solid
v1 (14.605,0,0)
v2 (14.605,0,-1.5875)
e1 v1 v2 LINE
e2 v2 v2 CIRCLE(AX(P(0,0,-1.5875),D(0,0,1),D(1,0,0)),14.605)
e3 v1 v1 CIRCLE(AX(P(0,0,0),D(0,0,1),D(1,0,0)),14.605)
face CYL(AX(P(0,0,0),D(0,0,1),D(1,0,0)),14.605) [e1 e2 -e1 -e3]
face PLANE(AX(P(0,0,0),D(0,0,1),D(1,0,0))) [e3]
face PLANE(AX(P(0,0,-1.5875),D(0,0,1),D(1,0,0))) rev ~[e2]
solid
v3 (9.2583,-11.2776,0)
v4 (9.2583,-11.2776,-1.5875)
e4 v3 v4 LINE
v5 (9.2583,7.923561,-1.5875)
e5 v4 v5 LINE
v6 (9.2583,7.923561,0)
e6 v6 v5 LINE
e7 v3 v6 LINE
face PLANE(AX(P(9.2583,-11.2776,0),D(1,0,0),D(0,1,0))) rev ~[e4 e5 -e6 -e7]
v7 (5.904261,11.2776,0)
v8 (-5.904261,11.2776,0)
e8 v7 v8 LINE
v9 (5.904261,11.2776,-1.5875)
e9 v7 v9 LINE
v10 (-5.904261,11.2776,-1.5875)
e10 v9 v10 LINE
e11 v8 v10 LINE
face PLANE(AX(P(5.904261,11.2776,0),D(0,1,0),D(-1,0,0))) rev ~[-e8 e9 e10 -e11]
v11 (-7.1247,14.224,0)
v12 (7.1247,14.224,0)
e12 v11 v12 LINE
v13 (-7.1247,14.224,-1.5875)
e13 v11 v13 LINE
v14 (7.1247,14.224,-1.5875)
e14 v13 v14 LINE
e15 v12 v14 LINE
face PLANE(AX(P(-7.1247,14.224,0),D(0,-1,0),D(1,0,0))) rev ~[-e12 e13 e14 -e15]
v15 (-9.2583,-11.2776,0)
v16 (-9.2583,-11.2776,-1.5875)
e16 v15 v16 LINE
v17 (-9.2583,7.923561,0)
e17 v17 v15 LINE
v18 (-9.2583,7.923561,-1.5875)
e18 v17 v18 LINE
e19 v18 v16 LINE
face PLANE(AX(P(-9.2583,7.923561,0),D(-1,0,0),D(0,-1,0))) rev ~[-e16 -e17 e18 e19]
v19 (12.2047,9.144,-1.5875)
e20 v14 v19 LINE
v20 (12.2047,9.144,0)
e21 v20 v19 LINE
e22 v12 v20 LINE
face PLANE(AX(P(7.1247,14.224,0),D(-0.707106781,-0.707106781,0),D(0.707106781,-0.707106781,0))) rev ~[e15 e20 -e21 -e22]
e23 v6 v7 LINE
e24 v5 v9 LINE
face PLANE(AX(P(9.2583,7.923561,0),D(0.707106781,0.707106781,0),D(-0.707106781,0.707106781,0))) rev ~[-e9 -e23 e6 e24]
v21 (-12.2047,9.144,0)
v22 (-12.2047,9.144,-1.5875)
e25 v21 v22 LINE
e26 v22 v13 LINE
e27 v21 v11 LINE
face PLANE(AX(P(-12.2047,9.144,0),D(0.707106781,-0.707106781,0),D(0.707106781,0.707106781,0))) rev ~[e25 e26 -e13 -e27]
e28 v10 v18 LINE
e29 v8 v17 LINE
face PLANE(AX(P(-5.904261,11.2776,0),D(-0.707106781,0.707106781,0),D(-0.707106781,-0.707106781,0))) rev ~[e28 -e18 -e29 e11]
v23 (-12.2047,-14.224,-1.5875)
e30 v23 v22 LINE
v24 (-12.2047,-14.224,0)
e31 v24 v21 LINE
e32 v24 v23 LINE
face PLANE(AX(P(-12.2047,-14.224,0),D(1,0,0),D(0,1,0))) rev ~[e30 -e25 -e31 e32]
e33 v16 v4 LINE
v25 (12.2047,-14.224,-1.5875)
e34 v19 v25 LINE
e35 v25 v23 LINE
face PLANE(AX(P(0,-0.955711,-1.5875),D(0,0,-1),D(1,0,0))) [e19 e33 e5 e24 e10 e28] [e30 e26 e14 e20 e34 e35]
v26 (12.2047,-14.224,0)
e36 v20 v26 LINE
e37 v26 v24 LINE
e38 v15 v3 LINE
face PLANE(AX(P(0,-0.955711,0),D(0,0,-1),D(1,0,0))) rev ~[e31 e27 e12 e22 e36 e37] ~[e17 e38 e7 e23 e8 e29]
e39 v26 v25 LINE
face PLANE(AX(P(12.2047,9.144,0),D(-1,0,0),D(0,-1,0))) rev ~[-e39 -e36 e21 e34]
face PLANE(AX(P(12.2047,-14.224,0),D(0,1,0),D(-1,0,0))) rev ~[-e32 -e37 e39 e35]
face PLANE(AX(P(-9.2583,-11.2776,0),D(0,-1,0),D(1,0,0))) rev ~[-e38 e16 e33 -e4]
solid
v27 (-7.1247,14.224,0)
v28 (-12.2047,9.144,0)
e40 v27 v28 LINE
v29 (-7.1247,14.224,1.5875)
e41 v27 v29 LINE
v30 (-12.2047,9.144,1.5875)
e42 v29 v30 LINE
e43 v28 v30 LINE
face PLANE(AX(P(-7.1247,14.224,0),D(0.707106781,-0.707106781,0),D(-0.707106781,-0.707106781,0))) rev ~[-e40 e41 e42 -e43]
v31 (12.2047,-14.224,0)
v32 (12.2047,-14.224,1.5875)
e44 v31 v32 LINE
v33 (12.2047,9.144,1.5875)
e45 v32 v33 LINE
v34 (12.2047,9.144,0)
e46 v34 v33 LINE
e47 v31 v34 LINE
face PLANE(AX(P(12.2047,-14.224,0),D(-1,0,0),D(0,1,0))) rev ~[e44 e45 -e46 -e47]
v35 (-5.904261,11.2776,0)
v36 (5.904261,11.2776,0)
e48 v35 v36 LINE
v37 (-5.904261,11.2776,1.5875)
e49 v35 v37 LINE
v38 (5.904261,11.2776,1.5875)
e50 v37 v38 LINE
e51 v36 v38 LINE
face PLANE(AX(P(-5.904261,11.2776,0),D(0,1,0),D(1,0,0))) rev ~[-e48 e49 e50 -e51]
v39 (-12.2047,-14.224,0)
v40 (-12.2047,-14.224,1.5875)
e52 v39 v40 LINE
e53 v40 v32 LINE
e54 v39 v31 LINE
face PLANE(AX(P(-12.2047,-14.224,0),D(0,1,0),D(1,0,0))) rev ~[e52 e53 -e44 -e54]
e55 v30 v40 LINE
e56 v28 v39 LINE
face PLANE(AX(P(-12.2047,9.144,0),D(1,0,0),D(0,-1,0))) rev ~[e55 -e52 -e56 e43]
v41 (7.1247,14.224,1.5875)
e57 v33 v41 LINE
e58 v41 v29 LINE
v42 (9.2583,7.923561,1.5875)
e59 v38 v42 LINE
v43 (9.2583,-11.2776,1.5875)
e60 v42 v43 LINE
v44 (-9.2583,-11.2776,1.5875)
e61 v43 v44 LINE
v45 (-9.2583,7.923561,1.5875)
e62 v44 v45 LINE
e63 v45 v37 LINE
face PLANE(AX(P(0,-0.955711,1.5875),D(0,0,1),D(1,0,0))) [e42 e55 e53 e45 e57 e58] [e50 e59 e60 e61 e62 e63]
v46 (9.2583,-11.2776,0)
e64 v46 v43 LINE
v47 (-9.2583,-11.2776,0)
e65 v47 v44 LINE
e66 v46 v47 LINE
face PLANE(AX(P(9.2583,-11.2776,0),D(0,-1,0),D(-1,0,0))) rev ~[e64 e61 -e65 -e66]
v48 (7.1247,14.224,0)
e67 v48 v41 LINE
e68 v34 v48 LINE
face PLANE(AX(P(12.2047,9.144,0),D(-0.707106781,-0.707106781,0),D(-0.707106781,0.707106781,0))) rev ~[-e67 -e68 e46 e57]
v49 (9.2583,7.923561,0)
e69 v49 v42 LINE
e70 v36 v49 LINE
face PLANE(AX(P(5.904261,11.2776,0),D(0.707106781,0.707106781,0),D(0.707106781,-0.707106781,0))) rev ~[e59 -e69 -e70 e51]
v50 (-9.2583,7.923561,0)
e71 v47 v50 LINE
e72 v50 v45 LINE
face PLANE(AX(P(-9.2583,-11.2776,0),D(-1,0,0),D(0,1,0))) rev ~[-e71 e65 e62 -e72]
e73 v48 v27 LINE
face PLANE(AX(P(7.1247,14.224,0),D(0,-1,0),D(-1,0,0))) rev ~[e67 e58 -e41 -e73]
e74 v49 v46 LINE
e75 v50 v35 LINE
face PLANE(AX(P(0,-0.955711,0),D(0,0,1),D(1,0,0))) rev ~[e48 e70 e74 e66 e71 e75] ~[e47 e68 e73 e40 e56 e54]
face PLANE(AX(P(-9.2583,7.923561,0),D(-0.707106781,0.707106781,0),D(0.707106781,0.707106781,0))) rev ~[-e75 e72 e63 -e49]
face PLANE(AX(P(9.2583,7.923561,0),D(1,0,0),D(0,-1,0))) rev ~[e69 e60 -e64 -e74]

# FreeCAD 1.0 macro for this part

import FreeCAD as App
import Part
import Sketcher
Q = App.Units.Quantity

doc = App.newDocument("Part")
body = doc.addObject("PartDesign::Body", "Body")

# Sketch on XY plane
sketch1 = body.newObject("Sketcher::SketchObject", "Sketch")
sketch1.AttachmentSupport = (doc.getObject("XY_Plane"), [""])
sketch1.MapMode = "FlatFace"
sketch1.addGeometry(Part.LineSegment(App.Vector(-12.2, -14.2, 0), App.Vector(12.2, -14.2, 0)), False)
sketch1.addGeometry(Part.LineSegment(App.Vector(12.2, -14.2, 0), App.Vector(12.2, 9.1, 0)), False)
sketch1.addGeometry(Part.LineSegment(App.Vector(12.2, 9.1, 0), App.Vector(7.1, 14.2, 0)), False)
sketch1.addGeometry(Part.LineSegment(App.Vector(7.1, 14.2, 0), App.Vector(-7.1, 14.2, 0)), False)
sketch1.addGeometry(Part.LineSegment(App.Vector(-7.1, 14.2, 0), App.Vector(-12.2, 9.1, 0)), False)
sketch1.addGeometry(Part.LineSegment(App.Vector(-12.2, 9.1, 0), App.Vector(-12.2, -14.2, 0)), False)
sketch1.addGeometry(Part.LineSegment(App.Vector(9.3, 7.9, 0), App.Vector(9.3, -11.3, 0)), False)
sketch1.addGeometry(Part.LineSegment(App.Vector(9.3, -11.3, 0), App.Vector(-9.3, -11.3, 0)), False)
sketch1.addGeometry(Part.LineSegment(App.Vector(-9.3, -11.3, 0), App.Vector(-9.3, 7.9, 0)), False)
sketch1.addGeometry(Part.LineSegment(App.Vector(-9.3, 7.9, 0), App.Vector(-5.9, 11.3, 0)), False)
sketch1.addGeometry(Part.LineSegment(App.Vector(-5.9, 11.3, 0), App.Vector(5.9, 11.3, 0)), False)
sketch1.addGeometry(Part.LineSegment(App.Vector(5.9, 11.3, 0), App.Vector(9.3, 7.9, 0)), False)
sketch1.addConstraint(Sketcher.Constraint("Coincident", 0, 2, 1, 1))
sketch1.addConstraint(Sketcher.Constraint("Coincident", 1, 2, 2, 1))
sketch1.addConstraint(Sketcher.Constraint("Coincident", 2, 2, 3, 1))
sketch1.addConstraint(Sketcher.Constraint("Coincident", 3, 2, 4, 1))
sketch1.addConstraint(Sketcher.Constraint("Coincident", 4, 2, 5, 1))
sketch1.addConstraint(Sketcher.Constraint("Coincident", 5, 2, 0, 1))
sketch1.addConstraint(Sketcher.Constraint("Coincident", 6, 2, 7, 1))
sketch1.addConstraint(Sketcher.Constraint("Coincident", 7, 2, 8, 1))
sketch1.addConstraint(Sketcher.Constraint("Coincident", 8, 2, 9, 1))
sketch1.addConstraint(Sketcher.Constraint("Coincident", 9, 2, 10, 1))
sketch1.addConstraint(Sketcher.Constraint("Coincident", 10, 2, 11, 1))
sketch1.addConstraint(Sketcher.Constraint("Coincident", 11, 2, 6, 1))
sketch1.addConstraint(Sketcher.Constraint("Horizontal", 0))
sketch1.addConstraint(Sketcher.Constraint("Vertical", 1))
sketch1.addConstraint(Sketcher.Constraint("Horizontal", 3))
sketch1.addConstraint(Sketcher.Constraint("Vertical", 5))
sketch1.addConstraint(Sketcher.Constraint("Vertical", 6))
sketch1.addConstraint(Sketcher.Constraint("Horizontal", 7))
sketch1.addConstraint(Sketcher.Constraint("Vertical", 8))
sketch1.addConstraint(Sketcher.Constraint("Horizontal", 10))
sketch1.addConstraint(Sketcher.Constraint("Symmetric", 1, 2, 4, 2, -2))
sketch1.addConstraint(Sketcher.Constraint("Symmetric", 8, 2, 11, 2, -2))
sketch1.addConstraint(Sketcher.Constraint("Perpendicular", 2, 4))
sketch1.addConstraint(Sketcher.Constraint("Parallel", 4, 9))
sketch1.addConstraint(Sketcher.Constraint("Perpendicular", 9, 11))
sketch1.addConstraint(Sketcher.Constraint("Equal", 2, 4))
sketch1.addConstraint(Sketcher.Constraint("DistanceY", 1, 1, 1, 2, Q("0.92 in")))
sketch1.addConstraint(Sketcher.Constraint("DistanceX", 2, 2, 1, 2, Q("0.2 in")))
sketch1.addConstraint(Sketcher.Constraint("DistanceX", 0, 1, 0, 2, Q("0.961 in")))
sketch1.addConstraint(Sketcher.Constraint("DistanceX", 7, 2, 7, 1, Q("0.729 in")))
sketch1.addConstraint(Sketcher.Constraint("DistanceY", 0, 2, -1, 1, Q("0.56 in")))
sketch1.addConstraint(Sketcher.Constraint("DistanceY", 6, 2, -1, 1, Q("0.444 in")))
sketch1.addConstraint(Sketcher.Constraint("DistanceY", -1, 1, 9, 2, Q("0.444 in")))
sketch1.addConstraint(Sketcher.Constraint("DistanceY", 6, 2, 6, 1, Q("19.201161 mm")))
pad1 = body.newObject("PartDesign::Pad", "Pad")
pad1.Profile = sketch1
pad1.Length = Q("0.0625 in")
body2 = doc.addObject("PartDesign::Body", "Body001")

# Sketch on XY plane
sketch2 = body2.newObject("Sketcher::SketchObject", "Sketch001")
sketch2.AttachmentSupport = (doc.getObject("XY_Plane001"), [""])
sketch2.MapMode = "FlatFace"
sketch2.addGeometry(Part.Circle(App.Vector(0, 0, 0), App.Vector(0, 0, 1), 15), False)
sketch2.addConstraint(Sketcher.Constraint("Coincident", 0, 3, -1, 1))
sketch2.addConstraint(Sketcher.Constraint("Diameter", 0, Q("1.15 in")))
pad2 = body2.newObject("PartDesign::Pad", "Pad001")
pad2.Profile = sketch2
pad2.Length = Q("0.0625 in")
pad2.Reversed = True
body3 = doc.addObject("PartDesign::Body", "Body002")

# Sketch on XY plane
sketch3 = body3.newObject("Sketcher::SketchObject", "Sketch002")
sketch3.AttachmentSupport = (doc.getObject("XY_Plane002"), [""])
sketch3.MapMode = "FlatFace"
sketch3.addGeometry(Part.LineSegment(App.Vector(-12.2, -14.2, 0), App.Vector(-12.2, 9.1, 0)), False)
sketch3.addGeometry(Part.LineSegment(App.Vector(-12.2, 9.1, 0), App.Vector(-7.1, 14.2, 0)), False)
sketch3.addGeometry(Part.LineSegment(App.Vector(-7.1, 14.2, 0), App.Vector(7.1, 14.2, 0)), False)
sketch3.addGeometry(Part.LineSegment(App.Vector(7.1, 14.2, 0), App.Vector(12.2, 9.1, 0)), False)
sketch3.addGeometry(Part.LineSegment(App.Vector(12.2, 9.1, 0), App.Vector(12.2, -14.2, 0)), False)
sketch3.addGeometry(Part.LineSegment(App.Vector(12.2, -14.2, 0), App.Vector(-12.2, -14.2, 0)), False)
sketch3.addGeometry(Part.LineSegment(App.Vector(-9.3, 7.9, 0), App.Vector(-9.3, -11.3, 0)), False)
sketch3.addGeometry(Part.LineSegment(App.Vector(-9.3, -11.3, 0), App.Vector(9.3, -11.3, 0)), False)
sketch3.addGeometry(Part.LineSegment(App.Vector(9.3, -11.3, 0), App.Vector(9.3, 7.9, 0)), False)
sketch3.addGeometry(Part.LineSegment(App.Vector(9.3, 7.9, 0), App.Vector(5.9, 11.3, 0)), False)
sketch3.addGeometry(Part.LineSegment(App.Vector(5.9, 11.3, 0), App.Vector(-5.9, 11.3, 0)), False)
sketch3.addGeometry(Part.LineSegment(App.Vector(-5.9, 11.3, 0), App.Vector(-9.3, 7.9, 0)), False)
sketch3.addConstraint(Sketcher.Constraint("Coincident", 0, 2, 1, 1))
sketch3.addConstraint(Sketcher.Constraint("Coincident", 1, 2, 2, 1))
sketch3.addConstraint(Sketcher.Constraint("Coincident", 2, 2, 3, 1))
sketch3.addConstraint(Sketcher.Constraint("Coincident", 3, 2, 4, 1))
sketch3.addConstraint(Sketcher.Constraint("Coincident", 4, 2, 5, 1))
sketch3.addConstraint(Sketcher.Constraint("Coincident", 5, 2, 0, 1))
sketch3.addConstraint(Sketcher.Constraint("Coincident", 6, 2, 7, 1))
sketch3.addConstraint(Sketcher.Constraint("Coincident", 7, 2, 8, 1))
sketch3.addConstraint(Sketcher.Constraint("Coincident", 8, 2, 9, 1))
sketch3.addConstraint(Sketcher.Constraint("Coincident", 9, 2, 10, 1))
sketch3.addConstraint(Sketcher.Constraint("Coincident", 10, 2, 11, 1))
sketch3.addConstraint(Sketcher.Constraint("Coincident", 11, 2, 6, 1))
sketch3.addConstraint(Sketcher.Constraint("Vertical", 0))
sketch3.addConstraint(Sketcher.Constraint("Horizontal", 2))
sketch3.addConstraint(Sketcher.Constraint("Vertical", 4))
sketch3.addConstraint(Sketcher.Constraint("Horizontal", 5))
sketch3.addConstraint(Sketcher.Constraint("Vertical", 6))
sketch3.addConstraint(Sketcher.Constraint("Horizontal", 7))
sketch3.addConstraint(Sketcher.Constraint("Vertical", 8))
sketch3.addConstraint(Sketcher.Constraint("Horizontal", 10))
sketch3.addConstraint(Sketcher.Constraint("Symmetric", 0, 2, 3, 2, -2))
sketch3.addConstraint(Sketcher.Constraint("Symmetric", 8, 2, 11, 2, -2))
sketch3.addConstraint(Sketcher.Constraint("Perpendicular", 1, 3))
sketch3.addConstraint(Sketcher.Constraint("Parallel", 3, 9))
sketch3.addConstraint(Sketcher.Constraint("Perpendicular", 9, 11))
sketch3.addConstraint(Sketcher.Constraint("Equal", 1, 3))
sketch3.addConstraint(Sketcher.Constraint("DistanceY", 0, 1, 0, 2, Q("0.92 in")))
sketch3.addConstraint(Sketcher.Constraint("DistanceX", 0, 2, 1, 2, Q("0.2 in")))
sketch3.addConstraint(Sketcher.Constraint("DistanceX", 2, 1, 2, 2, Q("0.561 in")))
sketch3.addConstraint(Sketcher.Constraint("DistanceX", 7, 1, 7, 2, Q("0.729 in")))
sketch3.addConstraint(Sketcher.Constraint("DistanceY", -1, 1, 0, 2, Q("0.36 in")))
sketch3.addConstraint(Sketcher.Constraint("DistanceY", 6, 2, -1, 1, Q("0.444 in")))
sketch3.addConstraint(Sketcher.Constraint("DistanceY", -1, 1, 9, 2, Q("0.444 in")))
sketch3.addConstraint(Sketcher.Constraint("DistanceY", 6, 2, 6, 1, Q("19.201161 mm")))
pad3 = body3.newObject("PartDesign::Pad", "Pad002")
pad3.Profile = sketch3
pad3.Length = Q("0.0625 in")
pad3.Reversed = True

doc.recompute()
